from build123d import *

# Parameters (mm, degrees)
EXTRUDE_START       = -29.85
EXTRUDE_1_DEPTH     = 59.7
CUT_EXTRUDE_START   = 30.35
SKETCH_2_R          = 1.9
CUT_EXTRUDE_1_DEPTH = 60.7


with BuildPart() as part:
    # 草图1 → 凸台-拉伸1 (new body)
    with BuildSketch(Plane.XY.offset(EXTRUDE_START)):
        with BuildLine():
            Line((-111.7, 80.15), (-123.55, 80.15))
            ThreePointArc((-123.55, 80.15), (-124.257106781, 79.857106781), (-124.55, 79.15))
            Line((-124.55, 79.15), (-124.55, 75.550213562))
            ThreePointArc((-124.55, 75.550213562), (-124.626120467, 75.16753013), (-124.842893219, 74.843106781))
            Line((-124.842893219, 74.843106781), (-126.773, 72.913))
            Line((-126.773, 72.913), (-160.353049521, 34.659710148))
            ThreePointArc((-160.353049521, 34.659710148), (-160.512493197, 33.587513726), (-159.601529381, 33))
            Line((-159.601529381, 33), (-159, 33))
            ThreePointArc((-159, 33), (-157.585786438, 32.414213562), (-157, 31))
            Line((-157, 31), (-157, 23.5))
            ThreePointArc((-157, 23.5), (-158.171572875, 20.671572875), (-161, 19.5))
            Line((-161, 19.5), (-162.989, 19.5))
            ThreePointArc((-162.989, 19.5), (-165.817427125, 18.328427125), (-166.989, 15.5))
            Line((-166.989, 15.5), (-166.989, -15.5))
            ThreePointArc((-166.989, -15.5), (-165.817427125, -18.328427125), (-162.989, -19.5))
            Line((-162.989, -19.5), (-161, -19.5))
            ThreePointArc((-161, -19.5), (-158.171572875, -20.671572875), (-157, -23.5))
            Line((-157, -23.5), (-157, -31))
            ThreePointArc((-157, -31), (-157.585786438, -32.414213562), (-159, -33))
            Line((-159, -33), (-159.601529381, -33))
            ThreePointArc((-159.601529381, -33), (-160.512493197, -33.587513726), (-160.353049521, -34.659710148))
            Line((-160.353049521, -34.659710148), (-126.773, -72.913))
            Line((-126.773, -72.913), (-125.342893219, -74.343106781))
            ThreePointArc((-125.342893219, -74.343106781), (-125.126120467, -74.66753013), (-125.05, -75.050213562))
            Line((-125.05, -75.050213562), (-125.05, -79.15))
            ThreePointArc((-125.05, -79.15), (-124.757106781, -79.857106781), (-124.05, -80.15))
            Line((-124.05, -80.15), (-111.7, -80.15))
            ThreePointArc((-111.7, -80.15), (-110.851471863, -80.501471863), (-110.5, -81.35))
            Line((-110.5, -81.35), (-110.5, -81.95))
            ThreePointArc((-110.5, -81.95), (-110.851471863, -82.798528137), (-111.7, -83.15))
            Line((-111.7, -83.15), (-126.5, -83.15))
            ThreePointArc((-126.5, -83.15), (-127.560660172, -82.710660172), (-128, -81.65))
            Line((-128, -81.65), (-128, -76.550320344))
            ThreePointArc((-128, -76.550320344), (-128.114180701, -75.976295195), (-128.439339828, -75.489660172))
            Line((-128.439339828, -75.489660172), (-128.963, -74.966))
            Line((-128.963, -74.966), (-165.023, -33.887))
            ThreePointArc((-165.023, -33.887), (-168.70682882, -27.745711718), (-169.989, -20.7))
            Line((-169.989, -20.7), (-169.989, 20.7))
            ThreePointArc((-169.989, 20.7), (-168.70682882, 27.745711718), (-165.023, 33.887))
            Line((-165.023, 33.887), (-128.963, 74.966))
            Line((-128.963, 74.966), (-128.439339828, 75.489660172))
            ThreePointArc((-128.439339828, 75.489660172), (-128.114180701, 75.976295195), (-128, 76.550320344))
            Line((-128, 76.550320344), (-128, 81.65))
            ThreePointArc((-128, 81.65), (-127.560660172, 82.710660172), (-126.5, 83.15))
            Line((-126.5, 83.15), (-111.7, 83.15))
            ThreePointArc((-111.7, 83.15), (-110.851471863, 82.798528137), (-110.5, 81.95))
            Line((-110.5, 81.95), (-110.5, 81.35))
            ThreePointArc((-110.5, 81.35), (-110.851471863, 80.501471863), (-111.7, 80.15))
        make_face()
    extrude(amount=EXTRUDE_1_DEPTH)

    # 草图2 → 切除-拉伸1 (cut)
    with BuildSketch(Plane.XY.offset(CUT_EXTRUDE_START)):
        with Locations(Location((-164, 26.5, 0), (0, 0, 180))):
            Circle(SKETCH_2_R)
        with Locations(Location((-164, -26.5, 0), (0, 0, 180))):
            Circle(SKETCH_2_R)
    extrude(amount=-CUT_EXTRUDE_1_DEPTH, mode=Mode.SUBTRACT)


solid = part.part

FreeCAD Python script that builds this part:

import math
import FreeCAD as App
import Part
import Sketcher
Q = App.Units.Quantity

doc = App.newDocument("Part")
body = doc.addObject("PartDesign::Body", "Body")

# Sketch on XY plane
sketch1 = body.newObject("Sketcher::SketchObject", "Sketch")
sketch1.AttachmentSupport = (doc.getObject("XY_Plane"), [""])
sketch1.MapMode = "FlatFace"
sketch1.AttachmentOffset = App.Placement(App.Vector(0, 0, -29.85), App.Rotation())
sketch1.addGeometry(Part.LineSegment(App.Vector(-123.55, 80.15, 0), App.Vector(-111.7, 80.15, 0)), False)
sketch1.addGeometry(Part.ArcOfCircle(Part.Circle(App.Vector(-111.7, 81.35, 0), App.Vector(0, 0, 1), 1.2), math.radians(-90), math.radians(0)), False)
sketch1.addGeometry(Part.LineSegment(App.Vector(-110.5, 81.35, 0), App.Vector(-110.5, 81.95, 0)), False)
sketch1.addGeometry(Part.ArcOfCircle(Part.Circle(App.Vector(-111.7, 81.95, 0), App.Vector(0, 0, 1), 1.2), math.radians(0), math.radians(90)), False)
sketch1.addGeometry(Part.LineSegment(App.Vector(-111.7, 83.15, 0), App.Vector(-126.5, 83.15, 0)), False)
sketch1.addGeometry(Part.ArcOfCircle(Part.Circle(App.Vector(-126.5, 81.65, 0), App.Vector(0, 0, 1), 1.5), math.radians(90), math.radians(180)), False)
sketch1.addGeometry(Part.LineSegment(App.Vector(-128, 81.65, 0), App.Vector(-128, 76.55032, 0)), False)
sketch1.addGeometry(Part.ArcOfCircle(Part.Circle(App.Vector(-129.5, 76.55032, 0), App.Vector(0, 0, 1), 1.5), math.radians(-45), math.radians(0)), False)
sketch1.addGeometry(Part.LineSegment(App.Vector(-128.43934, 75.48966, 0), App.Vector(-128.963, 74.966, 0)), False)
sketch1.addGeometry(Part.LineSegment(App.Vector(-128.963, 74.966, 0), App.Vector(-165.023, 33.887, 0)), False)
sketch1.addGeometry(Part.ArcOfCircle(Part.Circle(App.Vector(-150.004649, 20.702789, 0), App.Vector(0, 0, 1), 19.984351), math.radians(138.720962), math.radians(180.007996)), False)
sketch1.addGeometry(Part.LineSegment(App.Vector(-169.989, 20.7, 0), App.Vector(-169.989, -20.7, 0)), False)
sketch1.addGeometry(Part.ArcOfCircle(Part.Circle(App.Vector(-150.004649, -20.702789, 0), App.Vector(0, 0, 1), 19.984351), math.radians(179.992004), math.radians(221.279038)), False)
sketch1.addGeometry(Part.LineSegment(App.Vector(-165.023, -33.887, 0), App.Vector(-128.963, -74.966, 0)), False)
sketch1.addGeometry(Part.LineSegment(App.Vector(-128.963, -74.966, 0), App.Vector(-128.43934, -75.48966, 0)), False)
sketch1.addGeometry(Part.ArcOfCircle(Part.Circle(App.Vector(-129.5, -76.55032, 0), App.Vector(0, 0, 1), 1.5), math.radians(0), math.radians(45)), False)
sketch1.addGeometry(Part.LineSegment(App.Vector(-128, -76.55032, 0), App.Vector(-128, -81.65, 0)), False)
sketch1.addGeometry(Part.ArcOfCircle(Part.Circle(App.Vector(-126.5, -81.65, 0), App.Vector(0, 0, 1), 1.5), math.radians(180), math.radians(270)), False)
sketch1.addGeometry(Part.LineSegment(App.Vector(-126.5, -83.15, 0), App.Vector(-111.7, -83.15, 0)), False)
sketch1.addGeometry(Part.ArcOfCircle(Part.Circle(App.Vector(-111.7, -81.95, 0), App.Vector(0, 0, 1), 1.2), math.radians(-90), math.radians(0)), False)
sketch1.addGeometry(Part.LineSegment(App.Vector(-110.5, -81.95, 0), App.Vector(-110.5, -81.35, 0)), False)
sketch1.addGeometry(Part.ArcOfCircle(Part.Circle(App.Vector(-111.7, -81.35, 0), App.Vector(0, 0, 1), 1.2), math.radians(0), math.radians(90)), False)
sketch1.addGeometry(Part.LineSegment(App.Vector(-111.7, -80.15, 0), App.Vector(-124.05, -80.15, 0)), False)
sketch1.addGeometry(Part.ArcOfCircle(Part.Circle(App.Vector(-124.05, -79.15, 0), App.Vector(0, 0, 1), 1), math.radians(-180), math.radians(-90)), False)
sketch1.addGeometry(Part.LineSegment(App.Vector(-125.05, -79.15, 0), App.Vector(-125.05, -75.050214, 0)), False)
sketch1.addGeometry(Part.ArcOfCircle(Part.Circle(App.Vector(-126.05, -75.050214, 0), App.Vector(0, 0, 1), 1), math.radians(0), math.radians(45)), False)
sketch1.addGeometry(Part.LineSegment(App.Vector(-125.342893, -74.343107, 0), App.Vector(-126.773, -72.913, 0)), False)
sketch1.addGeometry(Part.LineSegment(App.Vector(-126.773, -72.913, 0), App.Vector(-160.35305, -34.65971, 0)), False)
sketch1.addGeometry(Part.ArcOfCircle(Part.Circle(App.Vector(-159.601529, -34, 0), App.Vector(0, 0, 1), 1), math.radians(90), math.radians(221.277771)), False)
sketch1.addGeometry(Part.LineSegment(App.Vector(-159.601529, -33, 0), App.Vector(-159, -33, 0)), False)
sketch1.addGeometry(Part.ArcOfCircle(Part.Circle(App.Vector(-159, -31, 0), App.Vector(0, 0, 1), 2), math.radians(-90), math.radians(0)), False)
sketch1.addGeometry(Part.LineSegment(App.Vector(-157, -31, 0), App.Vector(-157, -23.5, 0)), False)
sketch1.addGeometry(Part.ArcOfCircle(Part.Circle(App.Vector(-161, -23.5, 0), App.Vector(0, 0, 1), 4), math.radians(0), math.radians(90)), False)
sketch1.addGeometry(Part.LineSegment(App.Vector(-161, -19.5, 0), App.Vector(-162.989, -19.5, 0)), False)
sketch1.addGeometry(Part.ArcOfCircle(Part.Circle(App.Vector(-162.989, -15.5, 0), App.Vector(0, 0, 1), 4), math.radians(180), math.radians(270)), False)
sketch1.addGeometry(Part.LineSegment(App.Vector(-166.989, -15.5, 0), App.Vector(-166.989, 15.5, 0)), False)
sketch1.addGeometry(Part.ArcOfCircle(Part.Circle(App.Vector(-162.989, 15.5, 0), App.Vector(0, 0, 1), 4), math.radians(90), math.radians(180)), False)
sketch1.addGeometry(Part.LineSegment(App.Vector(-162.989, 19.5, 0), App.Vector(-161, 19.5, 0)), False)
sketch1.addGeometry(Part.ArcOfCircle(Part.Circle(App.Vector(-161, 23.5, 0), App.Vector(0, 0, 1), 4), math.radians(-90), math.radians(0)), False)
sketch1.addGeometry(Part.LineSegment(App.Vector(-157, 23.5, 0), App.Vector(-157, 31, 0)), False)
sketch1.addGeometry(Part.ArcOfCircle(Part.Circle(App.Vector(-159, 31, 0), App.Vector(0, 0, 1), 2), math.radians(0), math.radians(90)), False)
sketch1.addGeometry(Part.LineSegment(App.Vector(-159, 33, 0), App.Vector(-159.601529, 33, 0)), False)
sketch1.addGeometry(Part.ArcOfCircle(Part.Circle(App.Vector(-159.601529, 34, 0), App.Vector(0, 0, 1), 1), math.radians(138.722229), math.radians(270)), False)
sketch1.addGeometry(Part.LineSegment(App.Vector(-160.35305, 34.65971, 0), App.Vector(-126.773, 72.913, 0)), False)
sketch1.addGeometry(Part.LineSegment(App.Vector(-126.773, 72.913, 0), App.Vector(-124.842893, 74.843107, 0)), False)
sketch1.addGeometry(Part.ArcOfCircle(Part.Circle(App.Vector(-125.55, 75.550214, 0), App.Vector(0, 0, 1), 1), math.radians(-45), math.radians(0)), False)
sketch1.addGeometry(Part.LineSegment(App.Vector(-124.55, 75.550214, 0), App.Vector(-124.55, 79.15, 0)), False)
sketch1.addGeometry(Part.ArcOfCircle(Part.Circle(App.Vector(-123.55, 79.15, 0), App.Vector(0, 0, 1), 1), math.radians(90), math.radians(180)), False)
sketch1.addConstraint(Sketcher.Constraint("Tangent", 0, 2, 1, 1))
sketch1.addConstraint(Sketcher.Constraint("Tangent", 1, 2, 2, 1))
sketch1.addConstraint(Sketcher.Constraint("Tangent", 2, 2, 3, 1))
sketch1.addConstraint(Sketcher.Constraint("Tangent", 3, 2, 4, 1))
sketch1.addConstraint(Sketcher.Constraint("Tangent", 4, 2, 5, 1))
sketch1.addConstraint(Sketcher.Constraint("Tangent", 5, 2, 6, 1))
sketch1.addConstraint(Sketcher.Constraint("Tangent", 6, 2, 7, 2))
sketch1.addConstraint(Sketcher.Constraint("Tangent", 7, 1, 8, 1))
sketch1.addConstraint(Sketcher.Constraint("Coincident", 8, 2, 9, 1))
sketch1.addConstraint(Sketcher.Constraint("Coincident", 9, 2, 10, 1))
sketch1.addConstraint(Sketcher.Constraint("Coincident", 10, 2, 11, 1))
sketch1.addConstraint(Sketcher.Constraint("Coincident", 11, 2, 12, 1))
sketch1.addConstraint(Sketcher.Constraint("Coincident", 12, 2, 13, 1))
sketch1.addConstraint(Sketcher.Constraint("Coincident", 13, 2, 14, 1))
sketch1.addConstraint(Sketcher.Constraint("Tangent", 14, 2, 15, 2))
sketch1.addConstraint(Sketcher.Constraint("Tangent", 15, 1, 16, 1))
sketch1.addConstraint(Sketcher.Constraint("Tangent", 16, 2, 17, 1))
sketch1.addConstraint(Sketcher.Constraint("Tangent", 17, 2, 18, 1))
sketch1.addConstraint(Sketcher.Constraint("Tangent", 18, 2, 19, 1))
sketch1.addConstraint(Sketcher.Constraint("Tangent", 19, 2, 20, 1))
sketch1.addConstraint(Sketcher.Constraint("Tangent", 20, 2, 21, 1))
sketch1.addConstraint(Sketcher.Constraint("Tangent", 21, 2, 22, 1))
sketch1.addConstraint(Sketcher.Constraint("Tangent", 22, 2, 23, 2))
sketch1.addConstraint(Sketcher.Constraint("Tangent", 23, 1, 24, 1))
sketch1.addConstraint(Sketcher.Constraint("Tangent", 24, 2, 25, 1))
sketch1.addConstraint(Sketcher.Constraint("Tangent", 25, 2, 26, 1))
sketch1.addConstraint(Sketcher.Constraint("Coincident", 26, 2, 27, 1))
sketch1.addConstraint(Sketcher.Constraint("Tangent", 27, 2, 28, 2))
sketch1.addConstraint(Sketcher.Constraint("Tangent", 28, 1, 29, 1))
sketch1.addConstraint(Sketcher.Constraint("Tangent", 29, 2, 30, 1))
sketch1.addConstraint(Sketcher.Constraint("Tangent", 30, 2, 31, 1))
sketch1.addConstraint(Sketcher.Constraint("Tangent", 31, 2, 32, 1))
sketch1.addConstraint(Sketcher.Constraint("Tangent", 32, 2, 33, 1))
sketch1.addConstraint(Sketcher.Constraint("Tangent", 33, 2, 34, 2))
sketch1.addConstraint(Sketcher.Constraint("Tangent", 34, 1, 35, 1))
sketch1.addConstraint(Sketcher.Constraint("Tangent", 35, 2, 36, 2))
sketch1.addConstraint(Sketcher.Constraint("Tangent", 36, 1, 37, 1))
sketch1.addConstraint(Sketcher.Constraint("Tangent", 37, 2, 38, 1))
sketch1.addConstraint(Sketcher.Constraint("Tangent", 38, 2, 39, 1))
sketch1.addConstraint(Sketcher.Constraint("Tangent", 39, 2, 40, 1))
sketch1.addConstraint(Sketcher.Constraint("Tangent", 40, 2, 41, 1))
sketch1.addConstraint(Sketcher.Constraint("Tangent", 41, 2, 42, 2))
sketch1.addConstraint(Sketcher.Constraint("Tangent", 42, 1, 43, 1))
sketch1.addConstraint(Sketcher.Constraint("Coincident", 43, 2, 44, 1))
sketch1.addConstraint(Sketcher.Constraint("Tangent", 44, 2, 45, 1))
sketch1.addConstraint(Sketcher.Constraint("Tangent", 45, 2, 46, 1))
sketch1.addConstraint(Sketcher.Constraint("Tangent", 46, 2, 47, 2))
sketch1.addConstraint(Sketcher.Constraint("Tangent", 47, 1, 0, 1))
sketch1.addConstraint(Sketcher.Constraint("Horizontal", 0))
sketch1.addConstraint(Sketcher.Constraint("Vertical", 2))
sketch1.addConstraint(Sketcher.Constraint("Horizontal", 4))
sketch1.addConstraint(Sketcher.Constraint("Vertical", 6))
sketch1.addConstraint(Sketcher.Constraint("Vertical", 11))
sketch1.addConstraint(Sketcher.Constraint("Vertical", 16))
sketch1.addConstraint(Sketcher.Constraint("Horizontal", 18))
sketch1.addConstraint(Sketcher.Constraint("Vertical", 20))
sketch1.addConstraint(Sketcher.Constraint("Horizontal", 22))
sketch1.addConstraint(Sketcher.Constraint("Vertical", 24))
sketch1.addConstraint(Sketcher.Constraint("Horizontal", 29))
sketch1.addConstraint(Sketcher.Constraint("Vertical", 31))
sketch1.addConstraint(Sketcher.Constraint("Horizontal", 33))
sketch1.addConstraint(Sketcher.Constraint("Vertical", 35))
sketch1.addConstraint(Sketcher.Constraint("Horizontal", 37))
sketch1.addConstraint(Sketcher.Constraint("Vertical", 39))
sketch1.addConstraint(Sketcher.Constraint("Horizontal", 41))
sketch1.addConstraint(Sketcher.Constraint("Vertical", 46))
sketch1.addConstraint(Sketcher.Constraint("Equal", 1, 3))
sketch1.addConstraint(Sketcher.Constraint("Equal", 5, 7))
sketch1.addConstraint(Sketcher.Constraint("Equal", 10, 12))
sketch1.addConstraint(Sketcher.Constraint("Equal", 7, 15))
sketch1.addConstraint(Sketcher.Constraint("Equal", 15, 17))
sketch1.addConstraint(Sketcher.Constraint("Equal", 3, 19))
sketch1.addConstraint(Sketcher.Constraint("Equal", 19, 21))
sketch1.addConstraint(Sketcher.Constraint("Equal", 23, 25))
sketch1.addConstraint(Sketcher.Constraint("Equal", 25, 28))
sketch1.addConstraint(Sketcher.Constraint("Equal", 32, 34))
sketch1.addConstraint(Sketcher.Constraint("Equal", 34, 36))
sketch1.addConstraint(Sketcher.Constraint("Equal", 36, 38))
sketch1.addConstraint(Sketcher.Constraint("Equal", 30, 40))
sketch1.addConstraint(Sketcher.Constraint("Equal", 28, 42))
sketch1.addConstraint(Sketcher.Constraint("Equal", 42, 45))
sketch1.addConstraint(Sketcher.Constraint("Equal", 45, 47))
sketch1.addConstraint(Sketcher.Constraint("Symmetric", 7, 3, 15, 3, -1))
sketch1.addConstraint(Sketcher.Constraint("Symmetric", 3, 3, 19, 3, -1))
sketch1.addConstraint(Sketcher.Constraint("Symmetric", 32, 3, 38, 3, -1))
sketch1.addConstraint(Sketcher.Constraint("Symmetric", 28, 3, 42, 3, -1))
sketch1.addConstraint(Sketcher.Constraint("Symmetric", 9, 2, 12, 2, -1))
sketch1.addConstraint(Sketcher.Constraint("Symmetric", 8, 2, 13, 2, -1))
sketch1.addConstraint(Sketcher.Constraint("Symmetric", 26, 2, 43, 2, -1))
sketch1.addConstraint(Sketcher.Constraint("Perpendicular", 8, 14))
sketch1.addConstraint(Sketcher.Constraint("Parallel", 14, 26))
sketch1.addConstraint(Sketcher.Constraint("Perpendicular", 26, 44))
sketch1.addConstraint(Sketcher.Constraint("Equal", 2, 20))
sketch1.addConstraint(Sketcher.Constraint("Radius", 23, Q("1 mm")))
sketch1.addConstraint(Sketcher.Constraint("Radius", 30, Q("2 mm")))
sketch1.addConstraint(Sketcher.Constraint("Radius", 32, Q("4 mm")))
sketch1.addConstraint(Sketcher.Constraint("Radius", 1, Q("1.2 mm")))
sketch1.addConstraint(Sketcher.Constraint("Radius", 5, Q("1.5 mm")))
sketch1.addConstraint(Sketcher.Constraint("DistanceY", 35, 1, 35, 2, Q("31 mm")))
sketch1.addConstraint(Sketcher.Constraint("DistanceX", 4, 2, 4, 1, Q("14.8 mm")))
sketch1.addConstraint(Sketcher.Constraint("DistanceY", 2, 1, 2, 2, Q("0.6 mm")))
sketch1.addConstraint(Sketcher.Constraint("DistanceY", 11, 2, 11, 1, Q("41.4 mm")))
sketch1.addConstraint(Sketcher.Constraint("DistanceY", 31, 1, 31, 2, Q("7.5 mm")))
sketch1.addConstraint(Sketcher.Constraint("DistanceX", 30, 3, -1, 1, Q("159 mm")))
sketch1.addConstraint(Sketcher.Constraint("DistanceX", 5, 2, -1, 1, Q("128 mm")))
sketch1.addConstraint(Sketcher.Constraint("DistanceX", 0, 1, 0, 2, Q("11.85 mm")))
sketch1.addConstraint(Sketcher.Constraint("DistanceX", 22, 2, 22, 1, Q("12.35 mm")))
sketch1.addConstraint(Sketcher.Constraint("DistanceY", -1, 1, 10, 2, Q("20.7 mm")))
sketch1.addConstraint(Sketcher.Constraint("DistanceX", 33, 2, 33, 1, Q("1.989 mm")))
sketch1.addConstraint(Sketcher.Constraint("DistanceY", -1, 1, 1, 3, Q("81.35 mm")))
sketch1.addConstraint(Sketcher.Constraint("Radius", 10, Q("19.984351 mm")))
sketch1.addConstraint(Sketcher.Constraint("DistanceX", 8, 2, -1, 1, Q("128.963 mm")))
sketch1.addConstraint(Sketcher.Constraint("DistanceY", -1, 1, 8, 2, Q("74.966 mm")))
sketch1.addConstraint(Sketcher.Constraint("DistanceX", 9, 2, -1, 1, Q("165.023 mm")))
sketch1.addConstraint(Sketcher.Constraint("DistanceY", -1, 1, 9, 2, Q("33.887 mm")))
sketch1.addConstraint(Sketcher.Constraint("DistanceX", 10, 2, -1, 1, Q("169.989 mm")))
sketch1.addConstraint(Sketcher.Constraint("DistanceX", 26, 2, -1, 1, Q("126.773 mm")))
sketch1.addConstraint(Sketcher.Constraint("DistanceY", 26, 2, -1, 1, Q("72.913 mm")))
sketch1.addConstraint(Sketcher.Constraint("DistanceX", 29, 1, 29, 2, Q("0.601529 mm")))
pad1 = body.newObject("PartDesign::Pad", "Pad")
pad1.Profile = sketch1
pad1.Length = 59.7

# Sketch on XY plane
sketch2 = body.newObject("Sketcher::SketchObject", "Sketch001")
sketch2.AttachmentSupport = (doc.getObject("XY_Plane"), [""])
sketch2.MapMode = "FlatFace"
sketch2.AttachmentOffset = App.Placement(App.Vector(0, 0, 30.35), App.Rotation())
sketch2.addGeometry(Part.Circle(App.Vector(-164, 26.5, 0), App.Vector(0, 0, 1), 1.9), False)
sketch2.addGeometry(Part.Circle(App.Vector(-164, -26.5, 0), App.Vector(0, 0, 1), 1.9), False)
sketch2.addConstraint(Sketcher.Constraint("Equal", 0, 1))
sketch2.addConstraint(Sketcher.Constraint("Symmetric", 0, 3, 1, 3, -1))
sketch2.addConstraint(Sketcher.Constraint("Diameter", 0, Q("3.8 mm")))
sketch2.addConstraint(Sketcher.Constraint("DistanceX", 0, 3, -1, 1, Q("164 mm")))
sketch2.addConstraint(Sketcher.Constraint("DistanceY", 1, 3, 0, 3, Q("53 mm")))
pocket1 = body.newObject("PartDesign::Pocket", "Pocket")
pocket1.Profile = sketch2
pocket1.Length = 60.7

doc.recompute()
